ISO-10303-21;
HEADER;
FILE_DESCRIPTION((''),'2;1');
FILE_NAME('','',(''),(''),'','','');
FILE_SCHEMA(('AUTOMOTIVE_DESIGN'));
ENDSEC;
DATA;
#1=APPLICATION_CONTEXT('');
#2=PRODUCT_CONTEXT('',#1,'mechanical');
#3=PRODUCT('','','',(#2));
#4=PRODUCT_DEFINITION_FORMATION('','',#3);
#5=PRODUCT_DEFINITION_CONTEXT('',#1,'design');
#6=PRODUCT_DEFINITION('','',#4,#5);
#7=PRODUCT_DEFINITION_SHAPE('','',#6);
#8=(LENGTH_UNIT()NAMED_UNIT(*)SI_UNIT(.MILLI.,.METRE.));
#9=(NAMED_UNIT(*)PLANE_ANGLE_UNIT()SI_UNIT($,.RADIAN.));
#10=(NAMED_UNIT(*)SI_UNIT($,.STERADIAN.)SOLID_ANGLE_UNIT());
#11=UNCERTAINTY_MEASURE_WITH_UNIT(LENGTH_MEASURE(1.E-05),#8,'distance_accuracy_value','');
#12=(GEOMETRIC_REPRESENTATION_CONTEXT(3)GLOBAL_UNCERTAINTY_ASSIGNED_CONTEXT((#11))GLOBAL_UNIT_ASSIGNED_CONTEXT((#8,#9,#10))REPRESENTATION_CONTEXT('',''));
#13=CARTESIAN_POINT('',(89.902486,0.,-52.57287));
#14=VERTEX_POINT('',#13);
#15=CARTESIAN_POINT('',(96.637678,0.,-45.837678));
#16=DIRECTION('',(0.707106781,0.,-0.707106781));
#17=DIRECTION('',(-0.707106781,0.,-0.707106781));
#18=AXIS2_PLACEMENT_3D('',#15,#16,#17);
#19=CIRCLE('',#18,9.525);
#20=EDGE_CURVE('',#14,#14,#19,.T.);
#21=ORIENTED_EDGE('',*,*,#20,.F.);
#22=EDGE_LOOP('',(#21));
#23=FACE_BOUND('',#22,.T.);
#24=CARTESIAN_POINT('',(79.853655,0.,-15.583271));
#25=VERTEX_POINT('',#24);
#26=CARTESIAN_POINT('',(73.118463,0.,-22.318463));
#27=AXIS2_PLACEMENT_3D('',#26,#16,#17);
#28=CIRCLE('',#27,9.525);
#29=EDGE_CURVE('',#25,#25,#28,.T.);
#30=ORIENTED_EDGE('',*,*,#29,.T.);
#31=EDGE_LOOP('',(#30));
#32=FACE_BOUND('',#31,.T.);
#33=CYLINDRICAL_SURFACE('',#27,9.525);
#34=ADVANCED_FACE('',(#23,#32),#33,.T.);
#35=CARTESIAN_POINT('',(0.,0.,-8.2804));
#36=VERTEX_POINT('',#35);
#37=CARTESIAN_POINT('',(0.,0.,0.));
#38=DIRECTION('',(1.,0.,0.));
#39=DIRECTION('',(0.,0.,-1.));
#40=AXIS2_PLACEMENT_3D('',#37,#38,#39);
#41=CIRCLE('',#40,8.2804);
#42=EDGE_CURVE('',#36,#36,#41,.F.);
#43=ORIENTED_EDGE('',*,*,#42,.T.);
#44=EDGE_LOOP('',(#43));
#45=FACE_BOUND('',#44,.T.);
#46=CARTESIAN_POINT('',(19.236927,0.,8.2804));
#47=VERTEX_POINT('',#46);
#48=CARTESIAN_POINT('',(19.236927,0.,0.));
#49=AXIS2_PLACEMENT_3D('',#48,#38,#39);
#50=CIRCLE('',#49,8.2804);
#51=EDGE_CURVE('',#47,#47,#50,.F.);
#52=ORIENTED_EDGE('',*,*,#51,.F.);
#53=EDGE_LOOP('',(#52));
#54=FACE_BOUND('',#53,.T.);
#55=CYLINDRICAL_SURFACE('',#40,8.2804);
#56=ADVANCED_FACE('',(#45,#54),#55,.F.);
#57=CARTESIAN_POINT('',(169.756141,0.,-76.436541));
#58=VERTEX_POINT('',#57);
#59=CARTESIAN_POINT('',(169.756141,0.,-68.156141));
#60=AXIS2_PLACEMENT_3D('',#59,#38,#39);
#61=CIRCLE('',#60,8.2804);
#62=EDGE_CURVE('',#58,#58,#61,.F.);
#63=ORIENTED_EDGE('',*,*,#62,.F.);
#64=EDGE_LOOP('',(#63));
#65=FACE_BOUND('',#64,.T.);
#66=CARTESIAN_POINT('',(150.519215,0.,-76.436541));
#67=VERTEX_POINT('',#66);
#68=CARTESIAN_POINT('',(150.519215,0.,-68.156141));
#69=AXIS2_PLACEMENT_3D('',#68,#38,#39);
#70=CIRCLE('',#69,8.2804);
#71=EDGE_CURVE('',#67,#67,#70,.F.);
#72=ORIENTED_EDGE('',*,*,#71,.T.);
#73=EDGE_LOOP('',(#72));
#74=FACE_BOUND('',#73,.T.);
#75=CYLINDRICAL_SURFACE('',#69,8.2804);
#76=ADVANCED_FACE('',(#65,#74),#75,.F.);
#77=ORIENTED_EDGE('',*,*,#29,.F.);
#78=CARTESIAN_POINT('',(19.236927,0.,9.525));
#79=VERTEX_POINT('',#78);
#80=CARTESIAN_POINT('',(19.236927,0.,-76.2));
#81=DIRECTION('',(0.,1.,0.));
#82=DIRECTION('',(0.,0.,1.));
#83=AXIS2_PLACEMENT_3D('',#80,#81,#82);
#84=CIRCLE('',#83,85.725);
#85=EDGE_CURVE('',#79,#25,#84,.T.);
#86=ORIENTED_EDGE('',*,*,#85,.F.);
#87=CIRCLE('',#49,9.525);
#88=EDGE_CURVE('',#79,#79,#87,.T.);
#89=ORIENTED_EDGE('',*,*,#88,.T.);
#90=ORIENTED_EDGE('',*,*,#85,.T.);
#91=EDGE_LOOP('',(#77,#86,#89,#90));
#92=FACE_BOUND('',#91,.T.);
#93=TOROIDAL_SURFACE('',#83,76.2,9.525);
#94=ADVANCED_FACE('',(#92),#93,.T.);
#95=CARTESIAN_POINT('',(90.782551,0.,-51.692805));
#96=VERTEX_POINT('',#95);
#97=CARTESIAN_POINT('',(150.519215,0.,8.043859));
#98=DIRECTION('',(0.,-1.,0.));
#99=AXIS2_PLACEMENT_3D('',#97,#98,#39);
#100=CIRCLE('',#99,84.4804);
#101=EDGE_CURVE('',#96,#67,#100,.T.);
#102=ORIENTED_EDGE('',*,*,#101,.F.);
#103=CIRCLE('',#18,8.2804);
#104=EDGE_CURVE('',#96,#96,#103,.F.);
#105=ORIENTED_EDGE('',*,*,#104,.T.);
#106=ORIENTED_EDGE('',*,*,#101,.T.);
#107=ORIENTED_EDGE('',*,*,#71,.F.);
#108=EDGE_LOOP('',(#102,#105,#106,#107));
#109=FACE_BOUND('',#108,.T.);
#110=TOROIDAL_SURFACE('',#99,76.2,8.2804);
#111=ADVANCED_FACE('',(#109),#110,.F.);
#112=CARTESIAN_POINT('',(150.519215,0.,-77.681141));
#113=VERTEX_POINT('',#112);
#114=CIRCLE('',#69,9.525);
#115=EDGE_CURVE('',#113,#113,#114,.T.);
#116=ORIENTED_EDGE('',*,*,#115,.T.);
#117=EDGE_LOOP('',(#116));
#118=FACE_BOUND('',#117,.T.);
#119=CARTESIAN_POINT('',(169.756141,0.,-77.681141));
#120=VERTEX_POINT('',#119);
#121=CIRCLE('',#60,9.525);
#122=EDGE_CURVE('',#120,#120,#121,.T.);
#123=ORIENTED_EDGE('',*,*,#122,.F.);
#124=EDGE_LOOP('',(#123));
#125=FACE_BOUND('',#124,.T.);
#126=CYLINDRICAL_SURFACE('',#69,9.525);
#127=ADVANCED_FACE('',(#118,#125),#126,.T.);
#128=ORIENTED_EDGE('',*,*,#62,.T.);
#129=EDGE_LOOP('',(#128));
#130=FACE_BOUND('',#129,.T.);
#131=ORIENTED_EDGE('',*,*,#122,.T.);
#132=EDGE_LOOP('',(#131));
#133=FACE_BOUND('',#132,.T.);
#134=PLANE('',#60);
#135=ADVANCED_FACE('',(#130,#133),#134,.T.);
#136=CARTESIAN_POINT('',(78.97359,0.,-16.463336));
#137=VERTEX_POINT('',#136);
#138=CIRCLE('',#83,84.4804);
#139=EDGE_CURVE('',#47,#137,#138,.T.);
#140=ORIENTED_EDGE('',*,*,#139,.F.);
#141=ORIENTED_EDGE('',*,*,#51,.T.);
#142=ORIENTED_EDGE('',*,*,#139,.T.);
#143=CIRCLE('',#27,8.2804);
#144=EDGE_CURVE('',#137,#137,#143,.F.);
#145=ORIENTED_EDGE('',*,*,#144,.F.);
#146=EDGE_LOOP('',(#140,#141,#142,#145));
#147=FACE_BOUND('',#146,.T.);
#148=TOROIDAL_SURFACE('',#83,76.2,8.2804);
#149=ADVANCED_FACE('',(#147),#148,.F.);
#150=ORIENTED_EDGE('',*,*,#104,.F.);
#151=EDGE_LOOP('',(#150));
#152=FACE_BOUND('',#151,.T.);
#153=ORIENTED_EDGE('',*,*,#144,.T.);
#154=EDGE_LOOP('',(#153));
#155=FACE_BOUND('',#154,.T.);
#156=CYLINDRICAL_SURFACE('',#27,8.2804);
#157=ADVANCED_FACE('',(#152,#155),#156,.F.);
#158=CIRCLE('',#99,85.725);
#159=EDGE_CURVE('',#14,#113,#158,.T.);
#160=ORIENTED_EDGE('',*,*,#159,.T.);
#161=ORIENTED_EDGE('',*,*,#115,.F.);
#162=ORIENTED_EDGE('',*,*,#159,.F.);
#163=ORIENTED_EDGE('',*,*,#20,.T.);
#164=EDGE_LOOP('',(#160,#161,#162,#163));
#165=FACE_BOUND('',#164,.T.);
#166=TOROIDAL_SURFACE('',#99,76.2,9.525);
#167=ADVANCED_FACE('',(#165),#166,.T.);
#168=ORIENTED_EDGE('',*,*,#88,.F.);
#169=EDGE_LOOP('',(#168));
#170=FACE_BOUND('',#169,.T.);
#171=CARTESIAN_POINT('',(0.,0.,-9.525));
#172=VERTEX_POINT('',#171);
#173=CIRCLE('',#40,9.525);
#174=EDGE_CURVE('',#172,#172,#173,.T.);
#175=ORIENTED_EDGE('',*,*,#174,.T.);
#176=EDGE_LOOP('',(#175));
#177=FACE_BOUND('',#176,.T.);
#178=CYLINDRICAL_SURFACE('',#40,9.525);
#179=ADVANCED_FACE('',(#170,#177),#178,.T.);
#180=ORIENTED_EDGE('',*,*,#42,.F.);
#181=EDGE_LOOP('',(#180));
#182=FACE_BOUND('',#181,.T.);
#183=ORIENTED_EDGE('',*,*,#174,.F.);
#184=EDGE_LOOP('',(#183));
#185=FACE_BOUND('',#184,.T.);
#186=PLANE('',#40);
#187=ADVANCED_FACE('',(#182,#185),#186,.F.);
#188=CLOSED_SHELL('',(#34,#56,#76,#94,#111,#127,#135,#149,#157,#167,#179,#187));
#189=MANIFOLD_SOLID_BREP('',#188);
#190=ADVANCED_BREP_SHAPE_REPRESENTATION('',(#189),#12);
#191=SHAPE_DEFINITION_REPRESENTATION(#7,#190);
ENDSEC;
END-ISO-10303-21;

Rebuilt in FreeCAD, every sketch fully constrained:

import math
import FreeCAD as App
import Part
import Sketcher

V = App.Vector
Q = App.Units.Quantity

doc = App.newDocument("Part")
body = doc.addObject("PartDesign::Body", "Body")

# Sketch on YZ plane
sketch1 = body.newObject("Sketcher::SketchObject", "Sketch")
sketch1.AttachmentSupport = (doc.getObject("YZ_Plane"), [""])
sketch1.MapMode = "FlatFace"
sketch1.addGeometry(Part.Circle(V(0, 0, 0), V(0, 0, 1), 10), False)
sketch1.addGeometry(Part.Circle(V(0, 0, 0), V(0, 0, 1), 8), False)
sketch1.addConstraint(Sketcher.Constraint("Coincident", 0, 3, -1, 1))
sketch1.addConstraint(Sketcher.Constraint("Coincident", 1, 3, -1, 1))
sketch1.addConstraint(Sketcher.Constraint("Diameter", 0, Q("0.75 in")))
sketch1.addConstraint(Sketcher.Constraint("Diameter", 1, Q("0.652 in")))

# Sketch on XZ plane
sketch2 = body.newObject("Sketcher::SketchObject", "Sketch001")
sketch2.AttachmentSupport = (doc.getObject("XZ_Plane"), [""])
sketch2.MapMode = "FlatFace"
sketch2.addGeometry(Part.LineSegment(V(0, 0, 0), V(19, 0, 0)), False)
sketch2.addGeometry(Part.ArcOfCircle(Part.Circle(V(19, -76, 0), V(0, 0, 1), 76), math.radians(45), math.radians(90)), False)
sketch2.addGeometry(Part.LineSegment(V(73, -22, 0), V(97, -46, 0)), False)
sketch2.addGeometry(Part.ArcOfCircle(Part.Circle(V(151, 8, 0), V(0, 0, 1), 76), math.radians(-135), math.radians(-90)), False)
sketch2.addGeometry(Part.LineSegment(V(151, -68, 0), V(170, -68, 0)), False)
sketch2.addConstraint(Sketcher.Constraint("Tangent", 0, 2, 1, 2))
sketch2.addConstraint(Sketcher.Constraint("Tangent", 1, 1, 2, 1))
sketch2.addConstraint(Sketcher.Constraint("Tangent", 2, 2, 3, 1))
sketch2.addConstraint(Sketcher.Constraint("Tangent", 3, 2, 4, 1))
sketch2.addConstraint(Sketcher.Constraint("Horizontal", 0))
sketch2.addConstraint(Sketcher.Constraint("Horizontal", 4))
sketch2.addConstraint(Sketcher.Constraint("Coincident", 0, 1, -1, 1))
sketch2.addConstraint(Sketcher.Constraint("Equal", 1, 3))
sketch2.addConstraint(Sketcher.Constraint("Equal", 0, 4))
sketch2.addConstraint(Sketcher.Constraint("Radius", 1, Q("3 in")))
sketch2.addConstraint(Sketcher.Constraint("Angle", 2, Q("-45 deg")))
sketch2.addConstraint(Sketcher.Constraint("DistanceX", 0, 1, 0, 2, Q("19.236927 mm")))
sketch2.addConstraint(Sketcher.Constraint("DistanceY", -1, 1, 3, 3, Q("8.043859 mm")))
doc.recompute()

additivepipe = body.newObject("PartDesign::AdditivePipe", "AdditivePipe")
additivepipe.Profile = sketch1
additivepipe.Spine = (sketch2, ["Edge1", "Edge2", "Edge3", "Edge4", "Edge5"])

doc.recompute()
